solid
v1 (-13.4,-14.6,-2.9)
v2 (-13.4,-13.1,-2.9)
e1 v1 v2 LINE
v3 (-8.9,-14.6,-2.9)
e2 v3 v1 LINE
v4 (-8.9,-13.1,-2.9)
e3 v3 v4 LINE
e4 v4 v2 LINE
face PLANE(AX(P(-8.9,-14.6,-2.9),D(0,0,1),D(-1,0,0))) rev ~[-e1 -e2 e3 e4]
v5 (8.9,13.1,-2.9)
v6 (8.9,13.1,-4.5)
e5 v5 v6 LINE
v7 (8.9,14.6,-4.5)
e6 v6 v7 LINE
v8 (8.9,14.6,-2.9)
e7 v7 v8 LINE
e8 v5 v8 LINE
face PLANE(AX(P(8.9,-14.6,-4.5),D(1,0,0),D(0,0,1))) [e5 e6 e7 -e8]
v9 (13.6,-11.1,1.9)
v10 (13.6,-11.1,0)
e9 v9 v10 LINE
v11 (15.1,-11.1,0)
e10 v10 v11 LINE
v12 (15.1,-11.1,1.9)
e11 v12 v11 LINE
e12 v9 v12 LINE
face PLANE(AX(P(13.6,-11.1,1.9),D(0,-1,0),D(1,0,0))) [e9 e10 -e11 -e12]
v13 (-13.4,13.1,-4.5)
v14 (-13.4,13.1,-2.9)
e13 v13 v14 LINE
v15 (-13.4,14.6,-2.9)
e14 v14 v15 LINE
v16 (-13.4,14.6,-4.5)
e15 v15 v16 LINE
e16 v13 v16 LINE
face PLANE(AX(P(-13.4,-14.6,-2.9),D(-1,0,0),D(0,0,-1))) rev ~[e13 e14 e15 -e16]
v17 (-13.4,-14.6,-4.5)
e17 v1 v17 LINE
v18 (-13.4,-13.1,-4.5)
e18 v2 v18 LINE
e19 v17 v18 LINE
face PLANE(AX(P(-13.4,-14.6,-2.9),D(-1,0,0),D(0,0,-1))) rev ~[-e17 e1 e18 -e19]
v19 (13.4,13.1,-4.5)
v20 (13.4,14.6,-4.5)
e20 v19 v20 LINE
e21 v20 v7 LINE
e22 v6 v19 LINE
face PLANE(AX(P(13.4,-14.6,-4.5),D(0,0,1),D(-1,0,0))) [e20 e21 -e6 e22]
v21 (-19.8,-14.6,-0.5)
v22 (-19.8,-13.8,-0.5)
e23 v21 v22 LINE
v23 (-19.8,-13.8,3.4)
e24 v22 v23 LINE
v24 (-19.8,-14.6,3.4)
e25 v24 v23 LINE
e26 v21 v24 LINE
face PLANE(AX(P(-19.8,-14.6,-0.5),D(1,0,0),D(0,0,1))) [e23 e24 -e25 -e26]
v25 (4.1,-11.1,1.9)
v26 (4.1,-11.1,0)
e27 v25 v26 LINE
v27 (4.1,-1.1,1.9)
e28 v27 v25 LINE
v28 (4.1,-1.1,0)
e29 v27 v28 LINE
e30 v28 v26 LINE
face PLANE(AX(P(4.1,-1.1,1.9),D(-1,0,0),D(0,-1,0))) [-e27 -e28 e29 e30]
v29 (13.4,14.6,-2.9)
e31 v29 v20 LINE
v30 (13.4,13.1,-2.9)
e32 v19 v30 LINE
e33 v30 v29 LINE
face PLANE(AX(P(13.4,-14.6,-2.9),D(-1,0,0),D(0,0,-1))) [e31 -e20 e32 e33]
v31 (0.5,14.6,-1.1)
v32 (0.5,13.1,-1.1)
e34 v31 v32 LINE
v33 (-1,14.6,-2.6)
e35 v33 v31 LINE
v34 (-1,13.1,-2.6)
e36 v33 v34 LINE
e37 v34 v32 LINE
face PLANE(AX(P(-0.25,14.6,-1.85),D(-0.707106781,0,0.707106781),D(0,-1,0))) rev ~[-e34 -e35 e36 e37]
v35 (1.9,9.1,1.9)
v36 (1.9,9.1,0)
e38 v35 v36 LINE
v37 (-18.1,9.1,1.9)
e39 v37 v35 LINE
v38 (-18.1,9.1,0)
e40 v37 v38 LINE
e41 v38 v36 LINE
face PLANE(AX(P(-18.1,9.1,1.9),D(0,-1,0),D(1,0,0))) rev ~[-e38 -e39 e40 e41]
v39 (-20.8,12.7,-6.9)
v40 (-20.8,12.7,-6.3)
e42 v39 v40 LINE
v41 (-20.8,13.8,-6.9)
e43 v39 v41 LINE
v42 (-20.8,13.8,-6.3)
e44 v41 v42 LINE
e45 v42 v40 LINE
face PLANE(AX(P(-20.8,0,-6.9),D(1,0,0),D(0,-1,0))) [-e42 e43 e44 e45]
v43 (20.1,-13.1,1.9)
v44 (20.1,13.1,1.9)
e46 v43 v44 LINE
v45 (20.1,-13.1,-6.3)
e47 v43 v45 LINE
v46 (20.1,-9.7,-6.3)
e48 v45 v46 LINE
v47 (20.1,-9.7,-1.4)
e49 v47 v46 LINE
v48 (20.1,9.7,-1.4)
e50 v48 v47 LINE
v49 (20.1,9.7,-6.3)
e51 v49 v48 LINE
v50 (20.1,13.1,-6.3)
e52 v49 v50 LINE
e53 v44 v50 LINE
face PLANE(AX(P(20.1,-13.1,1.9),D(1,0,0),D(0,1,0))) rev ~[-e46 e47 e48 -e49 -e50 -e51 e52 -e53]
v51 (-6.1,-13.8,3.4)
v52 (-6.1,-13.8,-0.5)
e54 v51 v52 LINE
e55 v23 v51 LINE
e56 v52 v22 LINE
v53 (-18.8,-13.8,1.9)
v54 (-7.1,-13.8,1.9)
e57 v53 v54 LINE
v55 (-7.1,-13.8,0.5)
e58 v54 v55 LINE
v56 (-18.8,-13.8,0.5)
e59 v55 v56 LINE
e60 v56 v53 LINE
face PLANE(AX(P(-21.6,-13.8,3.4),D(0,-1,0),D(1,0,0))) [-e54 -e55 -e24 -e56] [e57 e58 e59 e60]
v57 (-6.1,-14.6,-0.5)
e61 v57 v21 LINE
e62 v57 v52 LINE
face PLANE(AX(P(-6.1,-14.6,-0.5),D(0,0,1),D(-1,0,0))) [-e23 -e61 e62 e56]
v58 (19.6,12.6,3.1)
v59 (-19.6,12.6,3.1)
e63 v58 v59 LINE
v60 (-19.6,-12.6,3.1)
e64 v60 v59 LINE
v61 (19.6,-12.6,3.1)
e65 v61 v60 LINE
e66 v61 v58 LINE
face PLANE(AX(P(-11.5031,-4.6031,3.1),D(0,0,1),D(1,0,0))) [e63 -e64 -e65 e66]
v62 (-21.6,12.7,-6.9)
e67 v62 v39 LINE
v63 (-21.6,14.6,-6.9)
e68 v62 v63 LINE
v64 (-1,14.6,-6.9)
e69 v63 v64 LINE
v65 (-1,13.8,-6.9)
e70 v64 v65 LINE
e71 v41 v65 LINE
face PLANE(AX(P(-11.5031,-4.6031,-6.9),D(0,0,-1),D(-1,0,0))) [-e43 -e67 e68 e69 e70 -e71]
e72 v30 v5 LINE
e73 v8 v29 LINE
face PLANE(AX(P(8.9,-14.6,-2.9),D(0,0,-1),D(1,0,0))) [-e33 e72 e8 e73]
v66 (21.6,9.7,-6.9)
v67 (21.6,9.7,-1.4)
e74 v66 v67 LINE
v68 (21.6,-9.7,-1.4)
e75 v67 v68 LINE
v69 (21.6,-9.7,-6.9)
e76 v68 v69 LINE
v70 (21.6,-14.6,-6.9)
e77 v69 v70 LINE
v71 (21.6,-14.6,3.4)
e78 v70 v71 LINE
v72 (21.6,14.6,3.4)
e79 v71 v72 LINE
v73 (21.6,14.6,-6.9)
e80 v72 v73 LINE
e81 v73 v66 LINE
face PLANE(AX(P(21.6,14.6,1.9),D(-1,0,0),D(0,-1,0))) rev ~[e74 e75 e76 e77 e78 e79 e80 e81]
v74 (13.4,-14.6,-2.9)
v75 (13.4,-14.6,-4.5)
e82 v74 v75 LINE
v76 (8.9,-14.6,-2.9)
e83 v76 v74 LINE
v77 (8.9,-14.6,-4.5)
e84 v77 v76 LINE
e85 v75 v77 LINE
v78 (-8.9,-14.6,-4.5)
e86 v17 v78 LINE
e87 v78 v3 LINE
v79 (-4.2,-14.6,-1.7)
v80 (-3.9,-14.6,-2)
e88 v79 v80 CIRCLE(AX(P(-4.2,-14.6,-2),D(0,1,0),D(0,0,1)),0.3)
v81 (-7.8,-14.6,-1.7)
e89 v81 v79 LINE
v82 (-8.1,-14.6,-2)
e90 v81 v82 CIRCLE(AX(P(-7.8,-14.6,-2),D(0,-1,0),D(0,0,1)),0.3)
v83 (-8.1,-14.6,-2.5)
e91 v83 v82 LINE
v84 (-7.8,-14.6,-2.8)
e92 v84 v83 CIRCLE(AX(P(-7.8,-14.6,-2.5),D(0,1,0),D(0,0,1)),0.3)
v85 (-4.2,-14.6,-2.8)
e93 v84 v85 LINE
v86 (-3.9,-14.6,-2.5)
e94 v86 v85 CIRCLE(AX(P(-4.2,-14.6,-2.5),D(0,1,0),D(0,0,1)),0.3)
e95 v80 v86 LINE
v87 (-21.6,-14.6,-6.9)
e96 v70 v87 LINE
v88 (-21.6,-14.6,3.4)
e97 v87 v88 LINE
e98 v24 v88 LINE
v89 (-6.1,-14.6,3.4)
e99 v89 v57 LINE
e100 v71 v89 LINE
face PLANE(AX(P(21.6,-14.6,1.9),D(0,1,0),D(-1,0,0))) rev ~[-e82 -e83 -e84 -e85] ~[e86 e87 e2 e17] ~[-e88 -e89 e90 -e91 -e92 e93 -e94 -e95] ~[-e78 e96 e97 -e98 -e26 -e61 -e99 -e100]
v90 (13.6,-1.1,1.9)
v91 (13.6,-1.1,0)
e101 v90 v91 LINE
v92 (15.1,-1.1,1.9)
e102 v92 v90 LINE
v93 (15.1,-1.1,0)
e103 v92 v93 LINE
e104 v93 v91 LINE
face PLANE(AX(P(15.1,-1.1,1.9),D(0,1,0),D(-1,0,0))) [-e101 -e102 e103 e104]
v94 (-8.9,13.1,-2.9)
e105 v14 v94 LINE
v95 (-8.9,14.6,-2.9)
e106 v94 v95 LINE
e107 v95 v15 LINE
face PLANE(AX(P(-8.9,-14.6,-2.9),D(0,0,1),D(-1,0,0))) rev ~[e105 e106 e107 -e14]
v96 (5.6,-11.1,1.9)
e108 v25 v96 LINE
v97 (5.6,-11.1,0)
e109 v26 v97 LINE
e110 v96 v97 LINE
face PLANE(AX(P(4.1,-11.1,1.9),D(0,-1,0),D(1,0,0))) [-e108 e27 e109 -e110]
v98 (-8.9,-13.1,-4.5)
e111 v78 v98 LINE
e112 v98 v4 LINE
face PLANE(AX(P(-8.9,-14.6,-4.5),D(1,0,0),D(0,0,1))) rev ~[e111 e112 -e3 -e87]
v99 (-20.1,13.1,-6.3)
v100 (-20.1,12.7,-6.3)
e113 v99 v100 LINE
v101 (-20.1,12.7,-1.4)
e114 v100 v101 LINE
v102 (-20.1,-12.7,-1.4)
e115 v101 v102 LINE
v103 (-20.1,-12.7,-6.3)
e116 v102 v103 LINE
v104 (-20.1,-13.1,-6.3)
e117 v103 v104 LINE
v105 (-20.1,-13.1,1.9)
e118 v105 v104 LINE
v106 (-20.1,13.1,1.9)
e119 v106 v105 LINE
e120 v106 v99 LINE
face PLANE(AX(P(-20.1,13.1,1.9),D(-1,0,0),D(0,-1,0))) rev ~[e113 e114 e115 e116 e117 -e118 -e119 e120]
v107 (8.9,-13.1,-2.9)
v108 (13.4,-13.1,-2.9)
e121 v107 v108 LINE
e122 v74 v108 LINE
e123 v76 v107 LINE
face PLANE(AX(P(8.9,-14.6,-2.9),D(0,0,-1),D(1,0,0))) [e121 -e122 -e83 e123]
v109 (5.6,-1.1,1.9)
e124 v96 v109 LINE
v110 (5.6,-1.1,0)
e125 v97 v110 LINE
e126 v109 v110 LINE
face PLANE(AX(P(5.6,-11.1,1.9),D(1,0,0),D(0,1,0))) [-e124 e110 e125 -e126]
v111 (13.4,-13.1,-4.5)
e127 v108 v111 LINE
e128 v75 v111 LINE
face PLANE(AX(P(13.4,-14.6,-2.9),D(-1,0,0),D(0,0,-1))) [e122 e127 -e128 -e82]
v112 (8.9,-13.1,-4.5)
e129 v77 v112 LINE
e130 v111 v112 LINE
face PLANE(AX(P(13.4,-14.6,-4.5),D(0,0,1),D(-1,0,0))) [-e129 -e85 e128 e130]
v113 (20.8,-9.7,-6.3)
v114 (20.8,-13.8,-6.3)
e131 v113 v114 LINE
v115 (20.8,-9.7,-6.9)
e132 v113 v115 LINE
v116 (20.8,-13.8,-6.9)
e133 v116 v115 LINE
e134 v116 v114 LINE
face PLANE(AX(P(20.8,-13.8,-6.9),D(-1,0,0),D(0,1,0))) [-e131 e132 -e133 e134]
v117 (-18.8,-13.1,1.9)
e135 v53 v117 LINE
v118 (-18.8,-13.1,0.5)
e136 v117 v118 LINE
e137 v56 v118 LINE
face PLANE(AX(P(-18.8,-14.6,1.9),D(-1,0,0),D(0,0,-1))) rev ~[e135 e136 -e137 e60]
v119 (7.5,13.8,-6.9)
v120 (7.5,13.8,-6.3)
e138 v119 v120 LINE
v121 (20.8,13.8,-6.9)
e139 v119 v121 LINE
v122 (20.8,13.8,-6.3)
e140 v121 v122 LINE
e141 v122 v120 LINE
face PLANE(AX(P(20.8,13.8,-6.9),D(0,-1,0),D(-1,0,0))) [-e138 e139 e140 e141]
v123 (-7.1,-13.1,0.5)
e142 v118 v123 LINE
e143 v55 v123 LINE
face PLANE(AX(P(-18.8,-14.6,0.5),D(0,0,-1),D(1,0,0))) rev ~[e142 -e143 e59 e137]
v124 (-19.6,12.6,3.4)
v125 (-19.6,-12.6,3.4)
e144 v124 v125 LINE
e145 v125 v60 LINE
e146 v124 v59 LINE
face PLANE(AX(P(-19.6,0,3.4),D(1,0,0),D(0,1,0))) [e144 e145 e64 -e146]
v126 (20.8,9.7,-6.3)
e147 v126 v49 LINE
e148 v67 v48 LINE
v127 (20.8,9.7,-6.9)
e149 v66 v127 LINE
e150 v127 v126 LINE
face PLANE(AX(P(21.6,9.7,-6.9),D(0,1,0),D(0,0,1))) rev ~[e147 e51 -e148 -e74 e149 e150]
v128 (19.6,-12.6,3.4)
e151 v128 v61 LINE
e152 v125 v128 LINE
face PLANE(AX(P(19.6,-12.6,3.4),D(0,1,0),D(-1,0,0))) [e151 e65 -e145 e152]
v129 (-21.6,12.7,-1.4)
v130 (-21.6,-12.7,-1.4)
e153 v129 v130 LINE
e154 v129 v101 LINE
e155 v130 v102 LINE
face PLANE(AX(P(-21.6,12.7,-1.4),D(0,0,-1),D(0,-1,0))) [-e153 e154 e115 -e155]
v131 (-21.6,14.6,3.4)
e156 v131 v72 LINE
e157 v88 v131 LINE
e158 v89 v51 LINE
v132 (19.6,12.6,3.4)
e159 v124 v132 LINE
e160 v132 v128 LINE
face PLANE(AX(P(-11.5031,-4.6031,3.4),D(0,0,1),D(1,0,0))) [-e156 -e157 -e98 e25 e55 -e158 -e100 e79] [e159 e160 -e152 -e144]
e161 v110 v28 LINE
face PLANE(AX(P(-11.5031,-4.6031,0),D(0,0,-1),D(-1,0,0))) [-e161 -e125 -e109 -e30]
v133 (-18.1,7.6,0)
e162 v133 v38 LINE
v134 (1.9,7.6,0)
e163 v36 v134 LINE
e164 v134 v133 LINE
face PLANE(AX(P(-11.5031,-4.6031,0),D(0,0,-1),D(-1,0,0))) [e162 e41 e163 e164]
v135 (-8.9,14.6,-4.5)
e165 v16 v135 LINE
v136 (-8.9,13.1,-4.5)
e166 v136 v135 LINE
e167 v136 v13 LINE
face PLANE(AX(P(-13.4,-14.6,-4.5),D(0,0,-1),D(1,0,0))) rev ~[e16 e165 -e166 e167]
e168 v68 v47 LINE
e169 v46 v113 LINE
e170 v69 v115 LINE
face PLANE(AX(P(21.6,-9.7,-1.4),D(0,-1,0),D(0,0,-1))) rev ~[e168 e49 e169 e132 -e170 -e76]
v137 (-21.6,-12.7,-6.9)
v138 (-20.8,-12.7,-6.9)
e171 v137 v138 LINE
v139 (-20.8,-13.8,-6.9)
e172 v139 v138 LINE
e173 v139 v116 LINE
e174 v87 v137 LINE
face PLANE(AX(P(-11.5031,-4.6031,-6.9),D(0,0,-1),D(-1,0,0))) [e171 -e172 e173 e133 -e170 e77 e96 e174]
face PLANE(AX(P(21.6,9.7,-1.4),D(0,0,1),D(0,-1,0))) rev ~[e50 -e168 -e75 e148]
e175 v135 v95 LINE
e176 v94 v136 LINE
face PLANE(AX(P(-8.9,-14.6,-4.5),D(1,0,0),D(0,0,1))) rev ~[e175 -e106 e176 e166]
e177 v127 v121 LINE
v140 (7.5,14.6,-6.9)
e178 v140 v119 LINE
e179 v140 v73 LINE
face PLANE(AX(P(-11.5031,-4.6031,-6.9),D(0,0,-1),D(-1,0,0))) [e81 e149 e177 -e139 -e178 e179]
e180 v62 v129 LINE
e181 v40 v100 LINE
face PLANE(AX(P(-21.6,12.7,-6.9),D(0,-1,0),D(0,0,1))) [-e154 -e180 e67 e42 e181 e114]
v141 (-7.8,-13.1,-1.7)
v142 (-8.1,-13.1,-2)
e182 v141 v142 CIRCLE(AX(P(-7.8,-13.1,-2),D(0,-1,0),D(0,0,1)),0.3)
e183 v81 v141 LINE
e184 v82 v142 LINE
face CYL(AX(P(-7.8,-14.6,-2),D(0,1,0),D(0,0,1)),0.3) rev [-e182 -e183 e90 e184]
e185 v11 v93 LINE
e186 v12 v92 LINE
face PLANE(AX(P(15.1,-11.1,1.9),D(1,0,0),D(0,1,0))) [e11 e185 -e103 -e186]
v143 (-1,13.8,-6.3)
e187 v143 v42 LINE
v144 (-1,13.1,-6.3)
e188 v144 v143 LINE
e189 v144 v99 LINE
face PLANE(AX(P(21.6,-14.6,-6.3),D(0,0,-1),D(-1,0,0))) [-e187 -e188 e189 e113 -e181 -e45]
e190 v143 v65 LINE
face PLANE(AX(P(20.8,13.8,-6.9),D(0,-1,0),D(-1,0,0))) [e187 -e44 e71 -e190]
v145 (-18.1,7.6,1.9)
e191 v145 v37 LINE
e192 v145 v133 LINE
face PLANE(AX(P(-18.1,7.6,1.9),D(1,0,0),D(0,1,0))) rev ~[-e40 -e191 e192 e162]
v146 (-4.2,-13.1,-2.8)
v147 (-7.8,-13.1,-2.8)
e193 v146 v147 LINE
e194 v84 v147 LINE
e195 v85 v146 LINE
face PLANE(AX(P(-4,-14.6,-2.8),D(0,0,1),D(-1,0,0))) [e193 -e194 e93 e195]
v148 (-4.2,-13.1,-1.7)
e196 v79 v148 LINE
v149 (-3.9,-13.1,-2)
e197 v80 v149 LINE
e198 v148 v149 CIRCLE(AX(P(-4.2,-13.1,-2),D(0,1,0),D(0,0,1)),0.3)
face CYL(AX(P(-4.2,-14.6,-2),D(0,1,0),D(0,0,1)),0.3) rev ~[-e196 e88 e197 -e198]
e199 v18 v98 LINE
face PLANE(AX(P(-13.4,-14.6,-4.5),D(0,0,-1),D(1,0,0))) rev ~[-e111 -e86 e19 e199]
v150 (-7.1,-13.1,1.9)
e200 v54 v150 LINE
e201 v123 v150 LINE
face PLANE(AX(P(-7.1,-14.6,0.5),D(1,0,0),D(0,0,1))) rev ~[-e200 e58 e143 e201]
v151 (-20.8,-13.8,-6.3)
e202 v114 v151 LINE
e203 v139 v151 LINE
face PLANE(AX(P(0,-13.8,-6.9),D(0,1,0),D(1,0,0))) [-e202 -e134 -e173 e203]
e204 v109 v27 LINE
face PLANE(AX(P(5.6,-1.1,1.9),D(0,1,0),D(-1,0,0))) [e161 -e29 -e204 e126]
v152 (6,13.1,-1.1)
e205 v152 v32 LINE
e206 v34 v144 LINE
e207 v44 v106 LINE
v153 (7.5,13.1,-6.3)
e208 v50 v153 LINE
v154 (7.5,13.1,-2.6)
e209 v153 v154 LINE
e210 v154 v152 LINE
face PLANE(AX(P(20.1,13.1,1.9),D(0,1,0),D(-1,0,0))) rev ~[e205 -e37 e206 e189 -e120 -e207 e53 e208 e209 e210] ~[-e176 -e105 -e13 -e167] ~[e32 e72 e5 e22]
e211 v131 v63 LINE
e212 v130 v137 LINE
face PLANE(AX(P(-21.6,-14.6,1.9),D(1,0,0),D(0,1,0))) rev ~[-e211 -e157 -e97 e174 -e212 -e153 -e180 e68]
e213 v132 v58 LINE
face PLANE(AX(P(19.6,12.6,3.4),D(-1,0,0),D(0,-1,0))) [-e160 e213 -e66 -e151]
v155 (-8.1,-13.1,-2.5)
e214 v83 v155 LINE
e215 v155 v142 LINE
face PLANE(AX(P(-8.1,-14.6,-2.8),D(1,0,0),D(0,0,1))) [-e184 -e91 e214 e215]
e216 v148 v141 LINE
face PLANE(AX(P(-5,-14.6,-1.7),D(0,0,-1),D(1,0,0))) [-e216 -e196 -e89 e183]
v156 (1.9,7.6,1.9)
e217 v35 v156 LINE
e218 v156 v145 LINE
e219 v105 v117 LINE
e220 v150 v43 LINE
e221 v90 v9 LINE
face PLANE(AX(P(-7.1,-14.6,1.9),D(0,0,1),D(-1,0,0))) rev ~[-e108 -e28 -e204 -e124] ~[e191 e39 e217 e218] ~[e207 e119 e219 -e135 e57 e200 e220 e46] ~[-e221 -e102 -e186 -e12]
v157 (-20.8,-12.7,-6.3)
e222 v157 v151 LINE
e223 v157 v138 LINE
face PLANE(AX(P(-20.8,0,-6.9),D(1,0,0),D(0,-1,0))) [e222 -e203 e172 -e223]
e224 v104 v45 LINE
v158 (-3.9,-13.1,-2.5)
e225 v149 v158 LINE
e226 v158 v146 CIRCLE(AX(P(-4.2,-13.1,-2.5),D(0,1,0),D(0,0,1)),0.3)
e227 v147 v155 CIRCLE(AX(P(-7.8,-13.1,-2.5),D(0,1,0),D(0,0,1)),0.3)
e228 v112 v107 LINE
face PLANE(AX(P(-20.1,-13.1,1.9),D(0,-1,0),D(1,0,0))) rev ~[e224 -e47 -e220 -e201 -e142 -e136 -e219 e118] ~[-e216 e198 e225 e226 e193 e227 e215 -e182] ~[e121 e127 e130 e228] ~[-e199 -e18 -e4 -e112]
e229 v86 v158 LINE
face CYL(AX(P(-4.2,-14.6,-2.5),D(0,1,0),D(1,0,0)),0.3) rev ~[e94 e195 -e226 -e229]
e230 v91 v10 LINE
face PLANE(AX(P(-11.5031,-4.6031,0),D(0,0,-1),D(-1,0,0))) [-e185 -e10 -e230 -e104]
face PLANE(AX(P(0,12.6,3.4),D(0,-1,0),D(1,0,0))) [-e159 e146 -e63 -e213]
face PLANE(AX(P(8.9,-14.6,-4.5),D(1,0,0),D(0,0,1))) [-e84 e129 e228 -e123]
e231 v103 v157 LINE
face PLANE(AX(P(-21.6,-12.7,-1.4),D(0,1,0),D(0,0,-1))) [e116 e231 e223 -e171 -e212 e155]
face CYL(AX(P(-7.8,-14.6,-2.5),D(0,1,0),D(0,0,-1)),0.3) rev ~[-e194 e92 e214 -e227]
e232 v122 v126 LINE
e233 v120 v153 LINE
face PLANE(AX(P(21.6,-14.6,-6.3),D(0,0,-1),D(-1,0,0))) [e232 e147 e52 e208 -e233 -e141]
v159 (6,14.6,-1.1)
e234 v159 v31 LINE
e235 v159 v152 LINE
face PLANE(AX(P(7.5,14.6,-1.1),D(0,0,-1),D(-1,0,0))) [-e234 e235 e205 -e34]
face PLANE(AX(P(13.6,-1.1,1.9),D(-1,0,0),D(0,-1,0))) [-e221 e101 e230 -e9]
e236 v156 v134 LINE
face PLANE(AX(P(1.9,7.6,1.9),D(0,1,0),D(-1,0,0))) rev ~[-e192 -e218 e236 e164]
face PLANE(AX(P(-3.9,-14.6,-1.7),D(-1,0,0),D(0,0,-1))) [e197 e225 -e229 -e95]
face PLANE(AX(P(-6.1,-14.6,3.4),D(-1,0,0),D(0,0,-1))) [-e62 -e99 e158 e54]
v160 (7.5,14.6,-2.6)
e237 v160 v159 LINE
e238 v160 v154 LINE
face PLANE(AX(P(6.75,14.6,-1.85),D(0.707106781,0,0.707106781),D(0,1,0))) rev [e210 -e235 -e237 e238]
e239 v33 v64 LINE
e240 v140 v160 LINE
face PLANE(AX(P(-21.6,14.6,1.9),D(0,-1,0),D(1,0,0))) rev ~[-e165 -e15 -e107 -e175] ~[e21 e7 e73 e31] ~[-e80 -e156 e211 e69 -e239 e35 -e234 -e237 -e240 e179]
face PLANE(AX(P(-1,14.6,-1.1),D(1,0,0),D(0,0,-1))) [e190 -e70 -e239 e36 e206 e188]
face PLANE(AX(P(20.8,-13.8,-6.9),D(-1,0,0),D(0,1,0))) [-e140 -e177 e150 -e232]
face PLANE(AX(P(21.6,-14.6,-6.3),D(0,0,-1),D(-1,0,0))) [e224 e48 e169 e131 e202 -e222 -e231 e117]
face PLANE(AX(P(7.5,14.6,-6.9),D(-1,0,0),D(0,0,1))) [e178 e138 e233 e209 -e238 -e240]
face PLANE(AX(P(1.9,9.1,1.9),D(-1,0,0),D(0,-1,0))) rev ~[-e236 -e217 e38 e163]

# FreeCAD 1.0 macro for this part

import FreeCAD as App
import Part
import Sketcher
Q = App.Units.Quantity


def edges_at(feature, points):
    """Names of the edges that pass closest to the given points."""
    edges = feature.Shape.Edges
    near = lambda p: min(range(len(edges)), key=lambda i: edges[i].distToShape(Part.Vertex(*p))[0])
    return sorted({f"Edge{near(p) + 1}" for p in points})

doc = App.newDocument("Part")
body = doc.addObject("PartDesign::Body", "Body")

# Sketch on XY plane
sketch1 = body.newObject("Sketcher::SketchObject", "Sketch")
sketch1.AttachmentSupport = (doc.getObject("XY_Plane"), [""])
sketch1.MapMode = "FlatFace"
sketch1.AttachmentOffset = App.Placement(App.Vector(0, 0, 1.9), App.Rotation())
sketch1.addGeometry([
    Part.LineSegment(App.Vector(-22, 15, 0), App.Vector(-22, -15, 0)),
    Part.LineSegment(App.Vector(-22, -15, 0), App.Vector(22, -15, 0)),
    Part.LineSegment(App.Vector(22, -15, 0), App.Vector(22, 15, 0)),
    Part.LineSegment(App.Vector(22, 15, 0), App.Vector(-22, 15, 0)),
], False)
sketch1.addConstraint([
    Sketcher.Constraint("Coincident", 0, 2, 1, 1),
    Sketcher.Constraint("Coincident", 1, 2, 2, 1),
    Sketcher.Constraint("Coincident", 2, 2, 3, 1),
    Sketcher.Constraint("Coincident", 3, 2, 0, 1),
    Sketcher.Constraint("Vertical", 0),
    Sketcher.Constraint("Horizontal", 1),
    Sketcher.Constraint("Vertical", 2),
    Sketcher.Constraint("Horizontal", 3),
    Sketcher.Constraint("Symmetric", 0, 2, 2, 2, -1, 1),
    Sketcher.Constraint("DistanceX", 1, 1, 1, 2, Q("43.2 mm")),
    Sketcher.Constraint("DistanceY", 0, 2, 0, 1, Q("29.2 mm")),
])
pad1 = body.newObject("PartDesign::Pad", "Pad")
pad1.Profile = sketch1
pad1.Length = 1.5

# Sketch on XY plane
sketch2 = body.newObject("Sketcher::SketchObject", "Sketch001")
sketch2.AttachmentSupport = (doc.getObject("XY_Plane"), [""])
sketch2.MapMode = "FlatFace"
sketch2.AttachmentOffset = App.Placement(App.Vector(0, 0, 1.9), App.Rotation())
sketch2.addGeometry([
    Part.LineSegment(App.Vector(-22, -15, 0), App.Vector(-22, 15, 0)),  # 0
    Part.LineSegment(App.Vector(-22, 15, 0), App.Vector(22, 15, 0)),  # 1
    Part.LineSegment(App.Vector(22, 15, 0), App.Vector(22, -15, 0)),  # 2
    Part.LineSegment(App.Vector(22, -15, 0), App.Vector(-22, -15, 0)),  # 3
    Part.LineSegment(App.Vector(20, -13, 0), App.Vector(20, 13, 0)),  # 4
    Part.LineSegment(App.Vector(20, 13, 0), App.Vector(-20, 13, 0)),  # 5
    Part.LineSegment(App.Vector(-20, 13, 0), App.Vector(-20, -13, 0)),  # 6
    Part.LineSegment(App.Vector(-20, -13, 0), App.Vector(20, -13, 0)),  # 7
], False)
sketch2.addConstraint([
    Sketcher.Constraint("Coincident", 0, 2, 1, 1),
    Sketcher.Constraint("Coincident", 1, 2, 2, 1),
    Sketcher.Constraint("Coincident", 2, 2, 3, 1),
    Sketcher.Constraint("Coincident", 3, 2, 0, 1),
    Sketcher.Constraint("Coincident", 4, 2, 5, 1),
    Sketcher.Constraint("Coincident", 5, 2, 6, 1),
    Sketcher.Constraint("Coincident", 6, 2, 7, 1),
    Sketcher.Constraint("Coincident", 7, 2, 4, 1),
    Sketcher.Constraint("Vertical", 0),
    Sketcher.Constraint("Horizontal", 1),
    Sketcher.Constraint("Vertical", 2),
    Sketcher.Constraint("Horizontal", 3),
    Sketcher.Constraint("Vertical", 4),
    Sketcher.Constraint("Horizontal", 5),
    Sketcher.Constraint("Vertical", 6),
    Sketcher.Constraint("Horizontal", 7),
    Sketcher.Constraint("Symmetric", 0, 2, 2, 2, -1, 1),
    Sketcher.Constraint("Symmetric", 4, 2, 6, 2, -1, 1),
    Sketcher.Constraint("DistanceX", 4, 2, 1, 2, Q("1.5 mm")),
    Sketcher.Constraint("DistanceY", 4, 2, 1, 2, Q("1.5 mm")),
    Sketcher.Constraint("DistanceX", 1, 1, 1, 2, Q("43.2 mm")),
    Sketcher.Constraint("DistanceY", 0, 1, 0, 2, Q("29.2 mm")),
])
pad2 = body.newObject("PartDesign::Pad", "Pad001")
pad2.Profile = sketch2
pad2.Length = 8.8
pad2.Reversed = True

# Sketch on XY plane
sketch3 = body.newObject("Sketcher::SketchObject", "Sketch002")
sketch3.AttachmentSupport = (doc.getObject("XY_Plane"), [""])
sketch3.MapMode = "FlatFace"
sketch3.AttachmentOffset = App.Placement(App.Vector(0, 0, 1.9), App.Rotation())
sketch3.addGeometry([
    Part.LineSegment(App.Vector(13.6, -1.1, 0), App.Vector(15.1, -1.1, 0)),  # 0
    Part.LineSegment(App.Vector(15.1, -1.1, 0), App.Vector(15.1, -11.1, 0)),  # 1
    Part.LineSegment(App.Vector(15.1, -11.1, 0), App.Vector(13.6, -11.1, 0)),  # 2
    Part.LineSegment(App.Vector(13.6, -11.1, 0), App.Vector(13.6, -1.1, 0)),  # 3
    Part.LineSegment(App.Vector(4.1, -1.1, 0), App.Vector(5.6, -1.1, 0)),  # 4
    Part.LineSegment(App.Vector(5.6, -1.1, 0), App.Vector(5.6, -11.1, 0)),  # 5
    Part.LineSegment(App.Vector(5.6, -11.1, 0), App.Vector(4.1, -11.1, 0)),  # 6
    Part.LineSegment(App.Vector(4.1, -11.1, 0), App.Vector(4.1, -1.1, 0)),  # 7
    Part.LineSegment(App.Vector(-18.1, 7.6, 0), App.Vector(-18.1, 9.1, 0)),  # 8
    Part.LineSegment(App.Vector(-18.1, 9.1, 0), App.Vector(1.9, 9.1, 0)),  # 9
    Part.LineSegment(App.Vector(1.9, 9.1, 0), App.Vector(1.9, 7.6, 0)),  # 10
    Part.LineSegment(App.Vector(1.9, 7.6, 0), App.Vector(-18.1, 7.6, 0)),  # 11
], False)
sketch3.addConstraint([
    Sketcher.Constraint("Coincident", 0, 2, 1, 1),
    Sketcher.Constraint("Coincident", 1, 2, 2, 1),
    Sketcher.Constraint("Coincident", 2, 2, 3, 1),
    Sketcher.Constraint("Coincident", 3, 2, 0, 1),
    Sketcher.Constraint("Coincident", 4, 2, 5, 1),
    Sketcher.Constraint("Coincident", 5, 2, 6, 1),
    Sketcher.Constraint("Coincident", 6, 2, 7, 1),
    Sketcher.Constraint("Coincident", 7, 2, 4, 1),
    Sketcher.Constraint("Coincident", 8, 2, 9, 1),
    Sketcher.Constraint("Coincident", 9, 2, 10, 1),
    Sketcher.Constraint("Coincident", 10, 2, 11, 1),
    Sketcher.Constraint("Coincident", 11, 2, 8, 1),
    Sketcher.Constraint("Horizontal", 0),
    Sketcher.Constraint("Vertical", 1),
    Sketcher.Constraint("Horizontal", 2),
    Sketcher.Constraint("Vertical", 3),
    Sketcher.Constraint("Horizontal", 4),
    Sketcher.Constraint("Vertical", 5),
    Sketcher.Constraint("Horizontal", 6),
    Sketcher.Constraint("Vertical", 7),
    Sketcher.Constraint("Vertical", 8),
    Sketcher.Constraint("Horizontal", 9),
    Sketcher.Constraint("Vertical", 10),
    Sketcher.Constraint("Horizontal", 11),
    Sketcher.Constraint("Horizontal", 3, 2, 4, 2),
    Sketcher.Constraint("Horizontal", 2, 2, 5, 2),
    Sketcher.Constraint("Equal", 2, 4),
    Sketcher.Constraint("Equal", 6, 8),
    Sketcher.Constraint("DistanceX", 9, 1, 9, 2, Q("20 mm")),
    Sketcher.Constraint("DistanceY", 1, 2, 1, 1, Q("10 mm")),
    Sketcher.Constraint("DistanceX", 0, 1, 0, 2, Q("1.5 mm")),
    Sketcher.Constraint("DistanceX", 4, 2, 3, 2, Q("8 mm")),
    Sketcher.Constraint("DistanceX", -1, 1, 0, 2, Q("15.1 mm")),
    Sketcher.Constraint("DistanceY", 0, 2, -1, 1, Q("1.1 mm")),
    Sketcher.Constraint("DistanceX", 8, 2, -1, 1, Q("18.1 mm")),
    Sketcher.Constraint("DistanceY", -1, 1, 8, 2, Q("9.1 mm")),
])
pad3 = body.newObject("PartDesign::Pad", "Pad002")
pad3.Profile = sketch3
pad3.Length = 1.9
pad3.Reversed = True

# Sketch on XZ plane
sketch4 = body.newObject("Sketcher::SketchObject", "Sketch003")
sketch4.AttachmentSupport = (doc.getObject("XZ_Plane"), [""])
sketch4.MapMode = "FlatFace"
sketch4.AttachmentOffset = App.Placement(App.Vector(0, 0, 14.6), App.Rotation())
sketch4.addGeometry([
    Part.LineSegment(App.Vector(-7.1, 0.5, 0), App.Vector(-7.1, 1.9, 0)),
    Part.LineSegment(App.Vector(-7.1, 1.9, 0), App.Vector(-18.8, 1.9, 0)),
    Part.LineSegment(App.Vector(-18.8, 1.9, 0), App.Vector(-18.8, 0.5, 0)),
    Part.LineSegment(App.Vector(-18.8, 0.5, 0), App.Vector(-7.1, 0.5, 0)),
], False)
sketch4.addConstraint([
    Sketcher.Constraint("Coincident", 0, 2, 1, 1),
    Sketcher.Constraint("Coincident", 1, 2, 2, 1),
    Sketcher.Constraint("Coincident", 2, 2, 3, 1),
    Sketcher.Constraint("Coincident", 3, 2, 0, 1),
    Sketcher.Constraint("Vertical", 0),
    Sketcher.Constraint("Horizontal", 1),
    Sketcher.Constraint("Vertical", 2),
    Sketcher.Constraint("Horizontal", 3),
    Sketcher.Constraint("DistanceX", 1, 2, 1, 1, Q("11.7 mm")),
    Sketcher.Constraint("DistanceY", 0, 1, 0, 2, Q("1.4 mm")),
    Sketcher.Constraint("DistanceX", 0, 2, -1, 1, Q("7.1 mm")),
    Sketcher.Constraint("DistanceY", -1, 1, 0, 2, Q("1.9 mm")),
])
pocket1 = body.newObject("PartDesign::Pocket", "Pocket")
pocket1.Profile = sketch4
pocket1.Length = 1.5

# Sketch on XZ plane
sketch5 = body.newObject("Sketcher::SketchObject", "Sketch004")
sketch5.AttachmentSupport = (doc.getObject("XZ_Plane"), [""])
sketch5.MapMode = "FlatFace"
sketch5.AttachmentOffset = App.Placement(App.Vector(0, 0, 14.6), App.Rotation())
sketch5.addGeometry([
    Part.LineSegment(App.Vector(-6.1, 3.4, 0), App.Vector(-19.8, 3.4, 0)),
    Part.LineSegment(App.Vector(-19.8, 3.4, 0), App.Vector(-19.8, -0.5, 0)),
    Part.LineSegment(App.Vector(-19.8, -0.5, 0), App.Vector(-6.1, -0.5, 0)),
    Part.LineSegment(App.Vector(-6.1, -0.5, 0), App.Vector(-6.1, 3.4, 0)),
], False)
sketch5.addConstraint([
    Sketcher.Constraint("Coincident", 0, 2, 1, 1),
    Sketcher.Constraint("Coincident", 1, 2, 2, 1),
    Sketcher.Constraint("Coincident", 2, 2, 3, 1),
    Sketcher.Constraint("Coincident", 3, 2, 0, 1),
    Sketcher.Constraint("Horizontal", 0),
    Sketcher.Constraint("Vertical", 1),
    Sketcher.Constraint("Horizontal", 2),
    Sketcher.Constraint("Vertical", 3),
    Sketcher.Constraint("DistanceX", 0, 2, 0, 1, Q("13.7 mm")),
    Sketcher.Constraint("DistanceY", 1, 2, 1, 1, Q("3.9 mm")),
    Sketcher.Constraint("DistanceX", 0, 2, -1, 1, Q("19.8 mm")),
    Sketcher.Constraint("DistanceY", -1, 1, 0, 2, Q("3.4 mm")),
])
pocket2 = body.newObject("PartDesign::Pocket", "Pocket001")
pocket2.Profile = sketch5
pocket2.Length = 0.8

# Sketch on XZ plane
sketch6 = body.newObject("Sketcher::SketchObject", "Sketch005")
sketch6.AttachmentSupport = (doc.getObject("XZ_Plane"), [""])
sketch6.MapMode = "FlatFace"
sketch6.AttachmentOffset = App.Placement(App.Vector(0, 0, 14.6), App.Rotation())
sketch6.addGeometry([
    Part.LineSegment(App.Vector(-8.1, -1.7, 0), App.Vector(-8.1, -2.8, 0)),
    Part.LineSegment(App.Vector(-8.1, -2.8, 0), App.Vector(-3.9, -2.8, 0)),
    Part.LineSegment(App.Vector(-3.9, -2.8, 0), App.Vector(-3.9, -1.7, 0)),
    Part.LineSegment(App.Vector(-3.9, -1.7, 0), App.Vector(-8.1, -1.7, 0)),
], False)
sketch6.addConstraint([
    Sketcher.Constraint("Coincident", 0, 2, 1, 1),
    Sketcher.Constraint("Coincident", 1, 2, 2, 1),
    Sketcher.Constraint("Coincident", 2, 2, 3, 1),
    Sketcher.Constraint("Coincident", 3, 2, 0, 1),
    Sketcher.Constraint("Vertical", 0),
    Sketcher.Constraint("Horizontal", 1),
    Sketcher.Constraint("Vertical", 2),
    Sketcher.Constraint("Horizontal", 3),
    Sketcher.Constraint("DistanceX", 1, 1, 1, 2, Q("4.2 mm")),
    Sketcher.Constraint("DistanceY", 0, 2, 0, 1, Q("1.1 mm")),
    Sketcher.Constraint("DistanceX", 0, 2, -1, 1, Q("8.1 mm")),
    Sketcher.Constraint("DistanceY", 0, 2, -1, 1, Q("2.8 mm")),
])
pocket3 = body.newObject("PartDesign::Pocket", "Pocket002")
pocket3.Profile = sketch6
pocket3.Length = 1.5
doc.recompute()

fillet = body.newObject("PartDesign::Fillet", "Fillet")
fillet.Base = (pocket3, edges_at(pocket3, [
    (-8.1, -13.85, -2.8),
    (-3.9, -13.85, -2.8),
    (-8.1, -13.85, -1.7),
    (-3.9, -13.85, -1.7),
]))
fillet.Radius = 0.3

# Sketch on XZ plane
sketch7 = body.newObject("Sketcher::SketchObject", "Sketch006")
sketch7.AttachmentSupport = (doc.getObject("XZ_Plane"), [""])
sketch7.MapMode = "FlatFace"
sketch7.AttachmentOffset = App.Placement(App.Vector(0, 0, -14.6), App.Rotation())
sketch7.addGeometry([
    Part.LineSegment(App.Vector(8, -1, 0), App.Vector(8, -7, 0)),
    Part.LineSegment(App.Vector(8, -7, 0), App.Vector(-1, -7, 0)),
    Part.LineSegment(App.Vector(-1, -7, 0), App.Vector(-1, -1, 0)),
    Part.LineSegment(App.Vector(-1, -1, 0), App.Vector(8, -1, 0)),
], False)
sketch7.addConstraint([
    Sketcher.Constraint("Coincident", 0, 2, 1, 1),
    Sketcher.Constraint("Coincident", 1, 2, 2, 1),
    Sketcher.Constraint("Coincident", 2, 2, 3, 1),
    Sketcher.Constraint("Coincident", 3, 2, 0, 1),
    Sketcher.Constraint("Vertical", 0),
    Sketcher.Constraint("Horizontal", 1),
    Sketcher.Constraint("Vertical", 2),
    Sketcher.Constraint("Horizontal", 3),
    Sketcher.Constraint("DistanceX", 1, 2, 1, 1, Q("8.5 mm")),
    Sketcher.Constraint("DistanceY", 0, 2, 0, 1, Q("5.8 mm")),
    Sketcher.Constraint("DistanceX", 1, 2, -1, 1, Q("1 mm")),
    Sketcher.Constraint("DistanceY", 0, 2, -1, 1, Q("6.9 mm")),
])
pocket4 = body.newObject("PartDesign::Pocket", "Pocket003")
pocket4.Profile = sketch7
pocket4.Length = 1.5
pocket4.Reversed = True
doc.recompute()

chamfer = body.newObject("PartDesign::Chamfer", "Chamfer")
chamfer.Base = (pocket4, edges_at(pocket4, [(7.5, 13.85, -1.1), (-1, 13.85, -1.1)]))
chamfer.Size = 1.5

# Sketch on YZ plane
sketch8 = body.newObject("Sketcher::SketchObject", "Sketch007")
sketch8.AttachmentSupport = (doc.getObject("YZ_Plane"), [""])
sketch8.MapMode = "FlatFace"
sketch8.AttachmentOffset = App.Placement(App.Vector(0, 0, -21.6), App.Rotation())
sketch8.addGeometry([
    Part.LineSegment(App.Vector(13, -1, 0), App.Vector(13, -7, 0)),
    Part.LineSegment(App.Vector(13, -7, 0), App.Vector(-13, -7, 0)),
    Part.LineSegment(App.Vector(-13, -7, 0), App.Vector(-13, -1, 0)),
    Part.LineSegment(App.Vector(-13, -1, 0), App.Vector(13, -1, 0)),
], False)
sketch8.addConstraint([
    Sketcher.Constraint("Coincident", 0, 2, 1, 1),
    Sketcher.Constraint("Coincident", 1, 2, 2, 1),
    Sketcher.Constraint("Coincident", 2, 2, 3, 1),
    Sketcher.Constraint("Coincident", 3, 2, 0, 1),
    Sketcher.Constraint("Vertical", 0),
    Sketcher.Constraint("Horizontal", 1),
    Sketcher.Constraint("Vertical", 2),
    Sketcher.Constraint("Horizontal", 3),
    Sketcher.Constraint("DistanceX", 1, 2, 1, 1, Q("25.4 mm")),
    Sketcher.Constraint("DistanceY", 0, 2, 0, 1, Q("5.5 mm")),
    Sketcher.Constraint("DistanceX", -1, 1, 0, 2, Q("12.7 mm")),
    Sketcher.Constraint("DistanceY", 0, 2, -1, 1, Q("6.9 mm")),
])
pocket5 = body.newObject("PartDesign::Pocket", "Pocket004")
pocket5.Profile = sketch8
pocket5.Length = 1.5
pocket5.Reversed = True

# Sketch on YZ plane
sketch9 = body.newObject("Sketcher::SketchObject", "Sketch008")
sketch9.AttachmentSupport = (doc.getObject("YZ_Plane"), [""])
sketch9.MapMode = "FlatFace"
sketch9.AttachmentOffset = App.Placement(App.Vector(0, 0, 21.6), App.Rotation())
sketch9.addGeometry([
    Part.LineSegment(App.Vector(-10, -1, 0), App.Vector(-10, -7, 0)),
    Part.LineSegment(App.Vector(-10, -7, 0), App.Vector(10, -7, 0)),
    Part.LineSegment(App.Vector(10, -7, 0), App.Vector(10, -1, 0)),
    Part.LineSegment(App.Vector(10, -1, 0), App.Vector(-10, -1, 0)),
], False)
sketch9.addConstraint([
    Sketcher.Constraint("Coincident", 0, 2, 1, 1),
    Sketcher.Constraint("Coincident", 1, 2, 2, 1),
    Sketcher.Constraint("Coincident", 2, 2, 3, 1),
    Sketcher.Constraint("Coincident", 3, 2, 0, 1),
    Sketcher.Constraint("Vertical", 0),
    Sketcher.Constraint("Horizontal", 1),
    Sketcher.Constraint("Vertical", 2),
    Sketcher.Constraint("Horizontal", 3),
    Sketcher.Constraint("DistanceX", 1, 1, 1, 2, Q("19.4 mm")),
    Sketcher.Constraint("DistanceY", 0, 2, 0, 1, Q("5.5 mm")),
    Sketcher.Constraint("DistanceX", 0, 2, -1, 1, Q("9.7 mm")),
    Sketcher.Constraint("DistanceY", 0, 2, -1, 1, Q("6.9 mm")),
])
pocket6 = body.newObject("PartDesign::Pocket", "Pocket005")
pocket6.Profile = sketch9
pocket6.Length = 1.5

# Sketch on XY plane
sketch10 = body.newObject("Sketcher::SketchObject", "Sketch009")
sketch10.AttachmentSupport = (doc.getObject("XY_Plane"), [""])
sketch10.MapMode = "FlatFace"
sketch10.AttachmentOffset = App.Placement(App.Vector(0, 0, -6.9), App.Rotation())
sketch10.addGeometry([
    Part.LineSegment(App.Vector(21, -14, 0), App.Vector(-21, -14, 0)),
    Part.LineSegment(App.Vector(-21, -14, 0), App.Vector(-21, 14, 0)),
    Part.LineSegment(App.Vector(-21, 14, 0), App.Vector(21, 14, 0)),
    Part.LineSegment(App.Vector(21, 14, 0), App.Vector(21, -14, 0)),
], False)
sketch10.addConstraint([
    Sketcher.Constraint("Coincident", 0, 2, 1, 1),
    Sketcher.Constraint("Coincident", 1, 2, 2, 1),
    Sketcher.Constraint("Coincident", 2, 2, 3, 1),
    Sketcher.Constraint("Coincident", 3, 2, 0, 1),
    Sketcher.Constraint("Horizontal", 0),
    Sketcher.Constraint("Vertical", 1),
    Sketcher.Constraint("Horizontal", 2),
    Sketcher.Constraint("Vertical", 3),
    Sketcher.Constraint("Symmetric", 0, 2, 2, 2, -1, 1),
    Sketcher.Constraint("DistanceX", 0, 2, 0, 1, Q("41.6 mm")),
    Sketcher.Constraint("DistanceY", 1, 1, 1, 2, Q("27.6 mm")),
])
pocket7 = body.newObject("PartDesign::Pocket", "Pocket006")
pocket7.Profile = sketch10
pocket7.Length = 0.6
pocket7.Reversed = True

# Sketch on XZ plane
sketch11 = body.newObject("Sketcher::SketchObject", "Sketch010")
sketch11.AttachmentSupport = (doc.getObject("XZ_Plane"), [""])
sketch11.MapMode = "FlatFace"
sketch11.AttachmentOffset = App.Placement(App.Vector(0, 0, 14.6), App.Rotation())
sketch11.addGeometry([
    Part.LineSegment(App.Vector(8.9, -4.5, 0), App.Vector(13.4, -4.5, 0)),  # 0
    Part.LineSegment(App.Vector(13.4, -4.5, 0), App.Vector(13.4, -2.9, 0)),  # 1
    Part.LineSegment(App.Vector(13.4, -2.9, 0), App.Vector(8.9, -2.9, 0)),  # 2
    Part.LineSegment(App.Vector(8.9, -2.9, 0), App.Vector(8.9, -4.5, 0)),  # 3
    Part.LineSegment(App.Vector(-13.4, -2.9, 0), App.Vector(-13.4, -4.5, 0)),  # 4
    Part.LineSegment(App.Vector(-13.4, -4.5, 0), App.Vector(-8.9, -4.5, 0)),  # 5
    Part.LineSegment(App.Vector(-8.9, -4.5, 0), App.Vector(-8.9, -2.9, 0)),  # 6
    Part.LineSegment(App.Vector(-8.9, -2.9, 0), App.Vector(-13.4, -2.9, 0)),  # 7
], False)
sketch11.addConstraint([
    Sketcher.Constraint("Coincident", 0, 2, 1, 1),
    Sketcher.Constraint("Coincident", 1, 2, 2, 1),
    Sketcher.Constraint("Coincident", 2, 2, 3, 1),
    Sketcher.Constraint("Coincident", 3, 2, 0, 1),
    Sketcher.Constraint("Coincident", 4, 2, 5, 1),
    Sketcher.Constraint("Coincident", 5, 2, 6, 1),
    Sketcher.Constraint("Coincident", 6, 2, 7, 1),
    Sketcher.Constraint("Coincident", 7, 2, 4, 1),
    Sketcher.Constraint("Horizontal", 0),
    Sketcher.Constraint("Vertical", 1),
    Sketcher.Constraint("Horizontal", 2),
    Sketcher.Constraint("Vertical", 3),
    Sketcher.Constraint("Vertical", 4),
    Sketcher.Constraint("Horizontal", 5),
    Sketcher.Constraint("Vertical", 6),
    Sketcher.Constraint("Horizontal", 7),
    Sketcher.Constraint("Symmetric", 0, 2, 4, 2, -2),
    Sketcher.Constraint("Symmetric", 2, 2, 6, 2, -2),
    Sketcher.Constraint("DistanceX", 0, 1, 0, 2, Q("4.5 mm")),
    Sketcher.Constraint("DistanceY", 1, 1, 1, 2, Q("1.6 mm")),
    Sketcher.Constraint("DistanceY", 0, 2, -1, 1, Q("4.5 mm")),
    Sketcher.Constraint("DistanceX", -1, 1, 0, 2, Q("13.4 mm")),
])
pocket8 = body.newObject("PartDesign::Pocket", "Pocket007")
pocket8.Profile = sketch11
pocket8.Length = 29.2

# Sketch on XY plane
sketch12 = body.newObject("Sketcher::SketchObject", "Sketch011")
sketch12.AttachmentSupport = (doc.getObject("XY_Plane"), [""])
sketch12.MapMode = "FlatFace"
sketch12.AttachmentOffset = App.Placement(App.Vector(0, 0, 3.4), App.Rotation())
sketch12.addGeometry([
    Part.LineSegment(App.Vector(20, 13, 0), App.Vector(-20, 13, 0)),
    Part.LineSegment(App.Vector(-20, 13, 0), App.Vector(-20, -13, 0)),
    Part.LineSegment(App.Vector(-20, -13, 0), App.Vector(20, -13, 0)),
    Part.LineSegment(App.Vector(20, -13, 0), App.Vector(20, 13, 0)),
], False)
sketch12.addConstraint([
    Sketcher.Constraint("Coincident", 0, 2, 1, 1),
    Sketcher.Constraint("Coincident", 1, 2, 2, 1),
    Sketcher.Constraint("Coincident", 2, 2, 3, 1),
    Sketcher.Constraint("Coincident", 3, 2, 0, 1),
    Sketcher.Constraint("Horizontal", 0),
    Sketcher.Constraint("Vertical", 1),
    Sketcher.Constraint("Horizontal", 2),
    Sketcher.Constraint("Vertical", 3),
    Sketcher.Constraint("Symmetric", 0, 2, 2, 2, -1, 1),
    Sketcher.Constraint("DistanceX", 0, 2, 0, 1, Q("39.2 mm")),
    Sketcher.Constraint("DistanceY", 1, 2, 1, 1, Q("25.2 mm")),
])
pocket9 = body.newObject("PartDesign::Pocket", "Pocket008")
pocket9.Profile = sketch12
pocket9.Length = 0.3

doc.recompute()
